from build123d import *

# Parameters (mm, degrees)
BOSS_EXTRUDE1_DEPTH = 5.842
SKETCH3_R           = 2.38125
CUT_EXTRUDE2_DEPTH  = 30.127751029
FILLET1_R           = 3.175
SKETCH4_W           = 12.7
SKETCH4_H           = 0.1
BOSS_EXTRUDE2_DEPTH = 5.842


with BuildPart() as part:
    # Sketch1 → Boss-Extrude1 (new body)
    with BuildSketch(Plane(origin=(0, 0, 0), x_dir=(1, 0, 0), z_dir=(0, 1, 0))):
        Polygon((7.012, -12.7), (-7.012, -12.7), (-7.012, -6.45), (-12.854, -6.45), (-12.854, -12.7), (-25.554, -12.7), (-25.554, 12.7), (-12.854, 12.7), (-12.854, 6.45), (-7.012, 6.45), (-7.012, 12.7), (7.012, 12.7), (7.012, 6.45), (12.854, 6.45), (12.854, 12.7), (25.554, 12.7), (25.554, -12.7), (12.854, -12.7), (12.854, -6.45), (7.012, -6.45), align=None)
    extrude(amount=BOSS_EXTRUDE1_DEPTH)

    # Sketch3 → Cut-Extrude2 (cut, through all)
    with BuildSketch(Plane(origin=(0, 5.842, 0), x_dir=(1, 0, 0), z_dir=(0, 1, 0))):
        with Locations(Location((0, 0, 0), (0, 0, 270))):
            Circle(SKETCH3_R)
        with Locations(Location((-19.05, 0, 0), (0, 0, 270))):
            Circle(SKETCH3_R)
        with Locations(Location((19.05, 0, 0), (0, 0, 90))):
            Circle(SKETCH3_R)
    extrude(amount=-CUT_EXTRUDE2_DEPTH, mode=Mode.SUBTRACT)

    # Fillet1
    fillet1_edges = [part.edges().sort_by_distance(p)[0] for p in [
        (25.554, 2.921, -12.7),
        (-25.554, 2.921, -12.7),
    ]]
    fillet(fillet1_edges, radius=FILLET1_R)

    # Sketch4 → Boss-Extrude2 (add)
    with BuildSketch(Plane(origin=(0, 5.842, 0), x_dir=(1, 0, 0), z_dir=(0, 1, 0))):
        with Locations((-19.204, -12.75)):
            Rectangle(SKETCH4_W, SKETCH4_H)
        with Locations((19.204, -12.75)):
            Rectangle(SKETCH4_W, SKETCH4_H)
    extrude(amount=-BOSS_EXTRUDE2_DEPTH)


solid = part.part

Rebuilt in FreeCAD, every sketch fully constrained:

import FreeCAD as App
import Part
import Sketcher
from FreeCAD import Vector
Q = App.Units.Quantity


def edges_at(feature, points):
    """Names of the edges that pass closest to the given points."""
    edges = feature.Shape.Edges
    near = lambda p: min(range(len(edges)), key=lambda i: edges[i].distToShape(Part.Vertex(*p))[0])
    return sorted({f"Edge{near(p) + 1}" for p in points})

doc = App.newDocument("Part")
body = doc.addObject("PartDesign::Body", "Body")

sketch1 = doc.addObject("Sketcher::SketchObject", "Sketch")
body.addObject(sketch1)
sketch1.AttachmentSupport = (doc.XZ_Plane, [""])
sketch1.MapMode = "FlatFace"
sketch1.addGeometry(Part.LineSegment(Vector(-7, 13, 0), Vector(7, 13, 0)), False)
sketch1.addGeometry(Part.LineSegment(Vector(7, 13, 0), Vector(7, 6, 0)), False)
sketch1.addGeometry(Part.LineSegment(Vector(7, 6, 0), Vector(13, 6, 0)), False)
sketch1.addGeometry(Part.LineSegment(Vector(13, 6, 0), Vector(13, 13, 0)), False)
sketch1.addGeometry(Part.LineSegment(Vector(13, 13, 0), Vector(26, 13, 0)), False)
sketch1.addGeometry(Part.LineSegment(Vector(26, 13, 0), Vector(26, -13, 0)), False)
sketch1.addGeometry(Part.LineSegment(Vector(26, -13, 0), Vector(13, -13, 0)), False)
sketch1.addGeometry(Part.LineSegment(Vector(13, -13, 0), Vector(13, -6, 0)), False)
sketch1.addGeometry(Part.LineSegment(Vector(13, -6, 0), Vector(7, -6, 0)), False)
sketch1.addGeometry(Part.LineSegment(Vector(7, -6, 0), Vector(7, -13, 0)), False)
sketch1.addGeometry(Part.LineSegment(Vector(7, -13, 0), Vector(-7, -13, 0)), False)
sketch1.addGeometry(Part.LineSegment(Vector(-7, -13, 0), Vector(-7, -6, 0)), False)
sketch1.addGeometry(Part.LineSegment(Vector(-7, -6, 0), Vector(-13, -6, 0)), False)
sketch1.addGeometry(Part.LineSegment(Vector(-13, -6, 0), Vector(-13, -13, 0)), False)
sketch1.addGeometry(Part.LineSegment(Vector(-13, -13, 0), Vector(-26, -13, 0)), False)
sketch1.addGeometry(Part.LineSegment(Vector(-26, -13, 0), Vector(-26, 13, 0)), False)
sketch1.addGeometry(Part.LineSegment(Vector(-26, 13, 0), Vector(-13, 13, 0)), False)
sketch1.addGeometry(Part.LineSegment(Vector(-13, 13, 0), Vector(-13, 6, 0)), False)
sketch1.addGeometry(Part.LineSegment(Vector(-13, 6, 0), Vector(-7, 6, 0)), False)
sketch1.addGeometry(Part.LineSegment(Vector(-7, 6, 0), Vector(-7, 13, 0)), False)
sketch1.addConstraint(Sketcher.Constraint("Coincident", 0, 2, 1, 1))
sketch1.addConstraint(Sketcher.Constraint("Coincident", 1, 2, 2, 1))
sketch1.addConstraint(Sketcher.Constraint("Coincident", 2, 2, 3, 1))
sketch1.addConstraint(Sketcher.Constraint("Coincident", 3, 2, 4, 1))
sketch1.addConstraint(Sketcher.Constraint("Coincident", 4, 2, 5, 1))
sketch1.addConstraint(Sketcher.Constraint("Coincident", 5, 2, 6, 1))
sketch1.addConstraint(Sketcher.Constraint("Coincident", 6, 2, 7, 1))
sketch1.addConstraint(Sketcher.Constraint("Coincident", 7, 2, 8, 1))
sketch1.addConstraint(Sketcher.Constraint("Coincident", 8, 2, 9, 1))
sketch1.addConstraint(Sketcher.Constraint("Coincident", 9, 2, 10, 1))
sketch1.addConstraint(Sketcher.Constraint("Coincident", 10, 2, 11, 1))
sketch1.addConstraint(Sketcher.Constraint("Coincident", 11, 2, 12, 1))
sketch1.addConstraint(Sketcher.Constraint("Coincident", 12, 2, 13, 1))
sketch1.addConstraint(Sketcher.Constraint("Coincident", 13, 2, 14, 1))
sketch1.addConstraint(Sketcher.Constraint("Coincident", 14, 2, 15, 1))
sketch1.addConstraint(Sketcher.Constraint("Coincident", 15, 2, 16, 1))
sketch1.addConstraint(Sketcher.Constraint("Coincident", 16, 2, 17, 1))
sketch1.addConstraint(Sketcher.Constraint("Coincident", 17, 2, 18, 1))
sketch1.addConstraint(Sketcher.Constraint("Coincident", 18, 2, 19, 1))
sketch1.addConstraint(Sketcher.Constraint("Coincident", 19, 2, 0, 1))
sketch1.addConstraint(Sketcher.Constraint("Horizontal", 0))
sketch1.addConstraint(Sketcher.Constraint("Vertical", 1))
sketch1.addConstraint(Sketcher.Constraint("Horizontal", 2))
sketch1.addConstraint(Sketcher.Constraint("Vertical", 3))
sketch1.addConstraint(Sketcher.Constraint("Horizontal", 4))
sketch1.addConstraint(Sketcher.Constraint("Vertical", 5))
sketch1.addConstraint(Sketcher.Constraint("Horizontal", 6))
sketch1.addConstraint(Sketcher.Constraint("Vertical", 7))
sketch1.addConstraint(Sketcher.Constraint("Horizontal", 8))
sketch1.addConstraint(Sketcher.Constraint("Vertical", 9))
sketch1.addConstraint(Sketcher.Constraint("Horizontal", 10))
sketch1.addConstraint(Sketcher.Constraint("Vertical", 11))
sketch1.addConstraint(Sketcher.Constraint("Horizontal", 12))
sketch1.addConstraint(Sketcher.Constraint("Vertical", 13))
sketch1.addConstraint(Sketcher.Constraint("Horizontal", 14))
sketch1.addConstraint(Sketcher.Constraint("Vertical", 15))
sketch1.addConstraint(Sketcher.Constraint("Horizontal", 16))
sketch1.addConstraint(Sketcher.Constraint("Vertical", 17))
sketch1.addConstraint(Sketcher.Constraint("Horizontal", 18))
sketch1.addConstraint(Sketcher.Constraint("Vertical", 19))
sketch1.addConstraint(Sketcher.Constraint("Symmetric", 0, 2, 10, 2, -1, 1))
sketch1.addConstraint(Sketcher.Constraint("Symmetric", 2, 2, 12, 2, -1, 1))
sketch1.addConstraint(Sketcher.Constraint("Symmetric", 4, 2, 14, 2, -1, 1))
sketch1.addConstraint(Sketcher.Constraint("Symmetric", 6, 2, 16, 2, -1, 1))
sketch1.addConstraint(Sketcher.Constraint("Symmetric", 8, 2, 18, 2, -1, 1))
sketch1.addConstraint(Sketcher.Constraint("Symmetric", 8, 2, 11, 2, -2))
sketch1.addConstraint(Sketcher.Constraint("Symmetric", 6, 2, 13, 2, -2))
sketch1.addConstraint(Sketcher.Constraint("Horizontal", 0, 2, 3, 2))
sketch1.addConstraint(Sketcher.Constraint("DistanceY", 5, 2, 5, 1, Q("1 in")))
sketch1.addConstraint(Sketcher.Constraint("DistanceX", 4, 1, 4, 2, Q("0.5 in")))
sketch1.addConstraint(Sketcher.Constraint("DistanceX", 2, 1, 2, 2, Q("0.23 in")))
sketch1.addConstraint(Sketcher.Constraint("DistanceX", 0, 1, 0, 2, Q("14.024 mm")))
sketch1.addConstraint(Sketcher.Constraint("DistanceY", 1, 2, 1, 1, Q("6.25 mm")))
pad1 = doc.addObject("PartDesign::Pad", "Pad")
body.addObject(pad1)
pad1.Profile = sketch1
pad1.Length = Q("0.23 in")
pad1.Reversed = True

sketch2 = doc.addObject("Sketcher::SketchObject", "Sketch001")
body.addObject(sketch2)
sketch2.AttachmentSupport = (doc.XZ_Plane, [""])
sketch2.MapMode = "FlatFace"
sketch2.AttachmentOffset = App.Placement(Vector(0, 0, -0.23 * 25.4), App.Rotation())
sketch2.addGeometry(Part.Circle(Vector(0, 0, 0), Vector(0, 0, 1), 2.4), False)
sketch2.addGeometry(Part.Circle(Vector(-19.1, 0, 0), Vector(0, 0, 1), 2.4), False)
sketch2.addGeometry(Part.Circle(Vector(19.1, 0, 0), Vector(0, 0, 1), 2.4), False)
sketch2.addConstraint(Sketcher.Constraint("Coincident", 0, 3, -1, 1))
sketch2.addConstraint(Sketcher.Constraint("Equal", 0, 1))
sketch2.addConstraint(Sketcher.Constraint("Equal", 1, 2))
sketch2.addConstraint(Sketcher.Constraint("Symmetric", 1, 3, 2, 3, -1, 1))
sketch2.addConstraint(Sketcher.Constraint("PointOnObject", 1, 3, -1))
sketch2.addConstraint(Sketcher.Constraint("Diameter", 0, Q("0.1875 in")))
sketch2.addConstraint(Sketcher.Constraint("DistanceX", 1, 3, 2, 3, Q("1.5 in")))
pocket1 = doc.addObject("PartDesign::Pocket", "Pocket")
body.addObject(pocket1)
pocket1.Profile = sketch2
pocket1.Type = "ThroughAll"
pocket1.Reversed = True
doc.recompute()

fillet = doc.addObject("PartDesign::Fillet", "Fillet")
body.addObject(fillet)
fillet.Base = (pocket1, edges_at(pocket1, [(25.554, 2.921, -12.7), (-25.554, 2.921, -12.7)]))
fillet.Radius = Q("0.125 in")

sketch3 = doc.addObject("Sketcher::SketchObject", "Sketch002")
body.addObject(sketch3)
sketch3.AttachmentSupport = (doc.XZ_Plane, [""])
sketch3.MapMode = "FlatFace"
sketch3.AttachmentOffset = App.Placement(Vector(0, 0, -0.23 * 25.4), App.Rotation())
sketch3.addGeometry(Part.LineSegment(Vector(-25.55, 12.7, 0), Vector(-25.55, 12.8, 0)), False)
sketch3.addGeometry(Part.LineSegment(Vector(-25.55, 12.8, 0), Vector(-12.85, 12.8, 0)), False)
sketch3.addGeometry(Part.LineSegment(Vector(-12.85, 12.8, 0), Vector(-12.85, 12.7, 0)), False)
sketch3.addGeometry(Part.LineSegment(Vector(-12.85, 12.7, 0), Vector(-25.55, 12.7, 0)), False)
sketch3.addGeometry(Part.LineSegment(Vector(12.85, 12.7, 0), Vector(12.85, 12.8, 0)), False)
sketch3.addGeometry(Part.LineSegment(Vector(12.85, 12.8, 0), Vector(25.55, 12.8, 0)), False)
sketch3.addGeometry(Part.LineSegment(Vector(25.55, 12.8, 0), Vector(25.55, 12.7, 0)), False)
sketch3.addGeometry(Part.LineSegment(Vector(25.55, 12.7, 0), Vector(12.85, 12.7, 0)), False)
sketch3.addConstraint(Sketcher.Constraint("Coincident", 0, 2, 1, 1))
sketch3.addConstraint(Sketcher.Constraint("Coincident", 1, 2, 2, 1))
sketch3.addConstraint(Sketcher.Constraint("Coincident", 2, 2, 3, 1))
sketch3.addConstraint(Sketcher.Constraint("Coincident", 3, 2, 0, 1))
sketch3.addConstraint(Sketcher.Constraint("Coincident", 4, 2, 5, 1))
sketch3.addConstraint(Sketcher.Constraint("Coincident", 5, 2, 6, 1))
sketch3.addConstraint(Sketcher.Constraint("Coincident", 6, 2, 7, 1))
sketch3.addConstraint(Sketcher.Constraint("Coincident", 7, 2, 4, 1))
sketch3.addConstraint(Sketcher.Constraint("Vertical", 0))
sketch3.addConstraint(Sketcher.Constraint("Horizontal", 1))
sketch3.addConstraint(Sketcher.Constraint("Vertical", 2))
sketch3.addConstraint(Sketcher.Constraint("Horizontal", 3))
sketch3.addConstraint(Sketcher.Constraint("Vertical", 4))
sketch3.addConstraint(Sketcher.Constraint("Horizontal", 5))
sketch3.addConstraint(Sketcher.Constraint("Vertical", 6))
sketch3.addConstraint(Sketcher.Constraint("Horizontal", 7))
sketch3.addConstraint(Sketcher.Constraint("Symmetric", 1, 2, 4, 2, -2))
sketch3.addConstraint(Sketcher.Constraint("Symmetric", 3, 2, 6, 2, -2))
sketch3.addConstraint(Sketcher.Constraint("DistanceX", 1, 1, 1, 2, Q("0.5 in")))
sketch3.addConstraint(Sketcher.Constraint("DistanceY", -1, 1, 2, 2, Q("0.5 in")))
sketch3.addConstraint(Sketcher.Constraint("DistanceY", 0, 1, 0, 2, Q("0.1 mm")))
sketch3.addConstraint(Sketcher.Constraint("DistanceX", 0, 2, -1, 1, Q("25.554 mm")))
pad2 = doc.addObject("PartDesign::Pad", "Pad001")
body.addObject(pad2)
pad2.Profile = sketch3
pad2.Length = Q("0.23 in")

doc.recompute()
